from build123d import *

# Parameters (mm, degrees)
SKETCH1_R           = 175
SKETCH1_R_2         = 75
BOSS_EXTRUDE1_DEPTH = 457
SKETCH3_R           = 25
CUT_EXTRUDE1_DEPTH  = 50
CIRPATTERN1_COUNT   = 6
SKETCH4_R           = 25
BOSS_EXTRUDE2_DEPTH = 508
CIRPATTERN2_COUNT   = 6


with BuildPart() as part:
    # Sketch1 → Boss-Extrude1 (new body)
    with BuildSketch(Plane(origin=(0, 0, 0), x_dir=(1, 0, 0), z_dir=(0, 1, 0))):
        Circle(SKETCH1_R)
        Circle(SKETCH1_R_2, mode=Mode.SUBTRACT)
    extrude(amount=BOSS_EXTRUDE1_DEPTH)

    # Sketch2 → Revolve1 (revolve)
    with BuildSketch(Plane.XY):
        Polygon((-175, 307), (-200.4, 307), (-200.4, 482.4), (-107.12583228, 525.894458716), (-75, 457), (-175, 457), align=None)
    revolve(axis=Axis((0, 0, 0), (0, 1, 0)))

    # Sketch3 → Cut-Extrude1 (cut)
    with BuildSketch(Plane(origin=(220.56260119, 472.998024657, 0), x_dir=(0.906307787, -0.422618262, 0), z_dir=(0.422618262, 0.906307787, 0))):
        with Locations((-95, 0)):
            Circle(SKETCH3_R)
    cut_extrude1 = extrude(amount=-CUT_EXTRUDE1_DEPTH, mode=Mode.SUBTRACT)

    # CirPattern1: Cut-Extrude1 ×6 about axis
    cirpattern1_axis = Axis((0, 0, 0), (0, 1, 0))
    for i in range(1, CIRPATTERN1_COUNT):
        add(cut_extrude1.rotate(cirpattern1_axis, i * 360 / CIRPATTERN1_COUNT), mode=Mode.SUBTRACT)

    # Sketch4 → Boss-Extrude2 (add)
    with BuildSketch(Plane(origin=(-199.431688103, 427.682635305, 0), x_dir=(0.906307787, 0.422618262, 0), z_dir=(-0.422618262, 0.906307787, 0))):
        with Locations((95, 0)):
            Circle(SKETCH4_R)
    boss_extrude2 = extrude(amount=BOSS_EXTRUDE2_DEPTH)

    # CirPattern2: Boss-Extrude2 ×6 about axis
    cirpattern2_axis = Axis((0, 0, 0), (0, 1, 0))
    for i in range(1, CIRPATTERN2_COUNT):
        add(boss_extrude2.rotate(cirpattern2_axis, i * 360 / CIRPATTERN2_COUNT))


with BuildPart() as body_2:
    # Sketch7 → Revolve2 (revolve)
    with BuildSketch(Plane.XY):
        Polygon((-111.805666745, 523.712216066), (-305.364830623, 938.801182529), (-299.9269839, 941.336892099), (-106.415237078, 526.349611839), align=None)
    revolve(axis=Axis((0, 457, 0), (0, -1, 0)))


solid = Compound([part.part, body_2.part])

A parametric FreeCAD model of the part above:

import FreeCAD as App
import Part
import Sketcher
from FreeCAD import Vector
Q = App.Units.Quantity

doc = App.newDocument("Part")
body = doc.addObject("PartDesign::Body", "Body")

# Sketch on XZ plane
sketch1 = body.newObject("Sketcher::SketchObject", "Sketch")
sketch1.AttachmentSupport = (doc.getObject("XZ_Plane"), [""])
sketch1.MapMode = "FlatFace"
sketch1.addGeometry(Part.Circle(Vector(0, 0, 0), Vector(0, 0, 1), 175), False)
sketch1.addGeometry(Part.Circle(Vector(0, 0, 0), Vector(0, 0, 1), 75), False)
sketch1.addConstraint(Sketcher.Constraint("Coincident", 0, 3, -1, 1))
sketch1.addConstraint(Sketcher.Constraint("Coincident", 1, 3, -1, 1))
sketch1.addConstraint(Sketcher.Constraint("Diameter", 0, 350.0))
sketch1.addConstraint(Sketcher.Constraint("Diameter", 1, 150.0))
pad1 = body.newObject("PartDesign::Pad", "Pad")
pad1.Profile = sketch1
pad1.Length = 457
pad1.Reversed = True

# Sketch on XY plane
sketch2 = body.newObject("Sketcher::SketchObject", "Sketch001")
sketch2.AttachmentSupport = (doc.getObject("XY_Plane"), [""])
sketch2.MapMode = "FlatFace"
sketch2.addGeometry(Part.LineSegment(Vector(-200, 307, 0), Vector(-175, 307, 0)), False)
sketch2.addGeometry(Part.LineSegment(Vector(-175, 307, 0), Vector(-175, 457, 0)), False)
sketch2.addGeometry(Part.LineSegment(Vector(-175, 457, 0), Vector(-75, 457, 0)), False)
sketch2.addGeometry(Part.LineSegment(Vector(-75, 457, 0), Vector(-107, 526, 0)), False)
sketch2.addGeometry(Part.LineSegment(Vector(-107, 526, 0), Vector(-200, 482, 0)), False)
sketch2.addGeometry(Part.LineSegment(Vector(-200, 482, 0), Vector(-200, 307, 0)), False)
sketch2.addConstraint(Sketcher.Constraint("Coincident", 0, 2, 1, 1))
sketch2.addConstraint(Sketcher.Constraint("Coincident", 1, 2, 2, 1))
sketch2.addConstraint(Sketcher.Constraint("Coincident", 2, 2, 3, 1))
sketch2.addConstraint(Sketcher.Constraint("Coincident", 3, 2, 4, 1))
sketch2.addConstraint(Sketcher.Constraint("Coincident", 4, 2, 5, 1))
sketch2.addConstraint(Sketcher.Constraint("Coincident", 5, 2, 0, 1))
sketch2.addConstraint(Sketcher.Constraint("Horizontal", 0))
sketch2.addConstraint(Sketcher.Constraint("Vertical", 1))
sketch2.addConstraint(Sketcher.Constraint("Horizontal", 2))
sketch2.addConstraint(Sketcher.Constraint("Vertical", 5))
sketch2.addConstraint(Sketcher.Constraint("DistanceX", 2, 1, 2, 2, 100.0))
sketch2.addConstraint(Sketcher.Constraint("DistanceY", 1, 1, 1, 2, 150.0))
sketch2.addConstraint(Sketcher.Constraint("Angle", 4, Q("-155 deg")))
sketch2.addConstraint(Sketcher.Constraint("DistanceX", 0, 1, 0, 2, 25.4))
sketch2.addConstraint(Sketcher.Constraint("DistanceY", 5, 2, 5, 1, 175.4))
sketch2.addConstraint(Sketcher.Constraint("DistanceX", 0, 2, -1, 1, 175.0))
sketch2.addConstraint(Sketcher.Constraint("DistanceY", -1, 1, 0, 2, 307.0))
sketch2.addConstraint(Sketcher.Constraint("DistanceY", -1, 1, 3, 2, 525.894459))
revolution = body.newObject("PartDesign::Revolution", "Revolution")
revolution.Profile = sketch2
revolution.ReferenceAxis = (sketch2, ["V_Axis"])
revolution.Angle = 360

# Sketch on an angled plane
sketch3 = body.newObject("Sketcher::SketchObject", "Sketch002")
sketch3.Placement = App.Placement(Vector(220.562601, 472.998025, 0), App.Rotation(Vector(0.906307787, -0.422618262, 0), Vector(0, 0, -1), Vector(0.422618262, 0.906307787, 0), "ZXY"))
sketch3.addGeometry(Part.Circle(Vector(-95, 0, 0), Vector(0, 0, 1), 25), False)
sketch3.addConstraint(Sketcher.Constraint("PointOnObject", 0, 3, -1))
sketch3.addConstraint(Sketcher.Constraint("Diameter", 0, 50.0))
sketch3.addConstraint(Sketcher.Constraint("DistanceX", 0, 3, -1, 1, 95.0))
pocket1 = body.newObject("PartDesign::Pocket", "Pocket")
pocket1.Profile = sketch3
pocket1.Length = 50
doc.recompute()

polarpattern = body.newObject("PartDesign::PolarPattern", "PolarPattern")
polarpattern.Originals = [pocket1]
polarpattern.Axis = (doc.getObject("Y_Axis"), [""])
polarpattern.Angle = 360
polarpattern.Occurrences = 6
body.Tip = polarpattern

# Sketch on an angled plane
sketch4 = body.newObject("Sketcher::SketchObject", "Sketch003")
sketch4.Placement = App.Placement(Vector(-199.431688, 427.682635, 0), App.Rotation(Vector(0.906307787, 0.422618262, 0), Vector(0, 0, -1), Vector(-0.422618262, 0.906307787, 0), "ZXY"))
sketch4.addGeometry(Part.Circle(Vector(95, 0, 0), Vector(0, 0, 1), 25), False)
sketch4.addConstraint(Sketcher.Constraint("PointOnObject", 0, 3, -1))
sketch4.addConstraint(Sketcher.Constraint("Diameter", 0, 50.0))
sketch4.addConstraint(Sketcher.Constraint("DistanceX", -1, 1, 0, 3, 95.0))
pad2 = body.newObject("PartDesign::Pad", "Pad001")
pad2.Profile = sketch4
pad2.Length = 508
doc.recompute()

polarpattern2 = body.newObject("PartDesign::PolarPattern", "PolarPattern001")
polarpattern2.Originals = [pad2]
polarpattern2.Axis = (doc.getObject("Y_Axis"), [""])
polarpattern2.Angle = 360
polarpattern2.Occurrences = 6
body.Tip = polarpattern2
body2 = doc.addObject("PartDesign::Body", "Body001")

# Sketch on XY plane
sketch5 = body2.newObject("Sketcher::SketchObject", "Sketch004")
sketch5.AttachmentSupport = (doc.getObject("XY_Plane001"), [""])
sketch5.MapMode = "FlatFace"
sketch5.addGeometry(Part.LineSegment(Vector(-305, 939, 0), Vector(-112, 524, 0)), False)
sketch5.addGeometry(Part.LineSegment(Vector(-112, 524, 0), Vector(-106, 526, 0)), False)
sketch5.addGeometry(Part.LineSegment(Vector(-106, 526, 0), Vector(-300, 941, 0)), False)
sketch5.addGeometry(Part.LineSegment(Vector(-300, 941, 0), Vector(-305, 939, 0)), False)
sketch5.addConstraint(Sketcher.Constraint("Coincident", 0, 2, 1, 1))
sketch5.addConstraint(Sketcher.Constraint("Coincident", 1, 2, 2, 1))
sketch5.addConstraint(Sketcher.Constraint("Coincident", 2, 2, 3, 1))
sketch5.addConstraint(Sketcher.Constraint("Coincident", 3, 2, 0, 1))
sketch5.addConstraint(Sketcher.Constraint("Parallel", 0, 2))
sketch5.addConstraint(Sketcher.Constraint("Perpendicular", 2, 3))
sketch5.addConstraint(Sketcher.Constraint("Angle", 0, Q("-65 deg")))
sketch5.addConstraint(Sketcher.Constraint("Distance", 0, 458.0))
sketch5.addConstraint(Sketcher.Constraint("Distance", 3, 6.0))
sketch5.addConstraint(Sketcher.Constraint("Distance", 2, 457.887802))
sketch5.addConstraint(Sketcher.Constraint("DistanceY", -1, 1, 1, 2, 526.349612))
sketch5.addConstraint(Sketcher.Constraint("DistanceX", 3, 2, -1, 1, 305.364831))
revolution2 = body2.newObject("PartDesign::Revolution", "Revolution001")
revolution2.Profile = sketch5
revolution2.ReferenceAxis = (sketch5, ["V_Axis"])
revolution2.Angle = 360

doc.recompute()
